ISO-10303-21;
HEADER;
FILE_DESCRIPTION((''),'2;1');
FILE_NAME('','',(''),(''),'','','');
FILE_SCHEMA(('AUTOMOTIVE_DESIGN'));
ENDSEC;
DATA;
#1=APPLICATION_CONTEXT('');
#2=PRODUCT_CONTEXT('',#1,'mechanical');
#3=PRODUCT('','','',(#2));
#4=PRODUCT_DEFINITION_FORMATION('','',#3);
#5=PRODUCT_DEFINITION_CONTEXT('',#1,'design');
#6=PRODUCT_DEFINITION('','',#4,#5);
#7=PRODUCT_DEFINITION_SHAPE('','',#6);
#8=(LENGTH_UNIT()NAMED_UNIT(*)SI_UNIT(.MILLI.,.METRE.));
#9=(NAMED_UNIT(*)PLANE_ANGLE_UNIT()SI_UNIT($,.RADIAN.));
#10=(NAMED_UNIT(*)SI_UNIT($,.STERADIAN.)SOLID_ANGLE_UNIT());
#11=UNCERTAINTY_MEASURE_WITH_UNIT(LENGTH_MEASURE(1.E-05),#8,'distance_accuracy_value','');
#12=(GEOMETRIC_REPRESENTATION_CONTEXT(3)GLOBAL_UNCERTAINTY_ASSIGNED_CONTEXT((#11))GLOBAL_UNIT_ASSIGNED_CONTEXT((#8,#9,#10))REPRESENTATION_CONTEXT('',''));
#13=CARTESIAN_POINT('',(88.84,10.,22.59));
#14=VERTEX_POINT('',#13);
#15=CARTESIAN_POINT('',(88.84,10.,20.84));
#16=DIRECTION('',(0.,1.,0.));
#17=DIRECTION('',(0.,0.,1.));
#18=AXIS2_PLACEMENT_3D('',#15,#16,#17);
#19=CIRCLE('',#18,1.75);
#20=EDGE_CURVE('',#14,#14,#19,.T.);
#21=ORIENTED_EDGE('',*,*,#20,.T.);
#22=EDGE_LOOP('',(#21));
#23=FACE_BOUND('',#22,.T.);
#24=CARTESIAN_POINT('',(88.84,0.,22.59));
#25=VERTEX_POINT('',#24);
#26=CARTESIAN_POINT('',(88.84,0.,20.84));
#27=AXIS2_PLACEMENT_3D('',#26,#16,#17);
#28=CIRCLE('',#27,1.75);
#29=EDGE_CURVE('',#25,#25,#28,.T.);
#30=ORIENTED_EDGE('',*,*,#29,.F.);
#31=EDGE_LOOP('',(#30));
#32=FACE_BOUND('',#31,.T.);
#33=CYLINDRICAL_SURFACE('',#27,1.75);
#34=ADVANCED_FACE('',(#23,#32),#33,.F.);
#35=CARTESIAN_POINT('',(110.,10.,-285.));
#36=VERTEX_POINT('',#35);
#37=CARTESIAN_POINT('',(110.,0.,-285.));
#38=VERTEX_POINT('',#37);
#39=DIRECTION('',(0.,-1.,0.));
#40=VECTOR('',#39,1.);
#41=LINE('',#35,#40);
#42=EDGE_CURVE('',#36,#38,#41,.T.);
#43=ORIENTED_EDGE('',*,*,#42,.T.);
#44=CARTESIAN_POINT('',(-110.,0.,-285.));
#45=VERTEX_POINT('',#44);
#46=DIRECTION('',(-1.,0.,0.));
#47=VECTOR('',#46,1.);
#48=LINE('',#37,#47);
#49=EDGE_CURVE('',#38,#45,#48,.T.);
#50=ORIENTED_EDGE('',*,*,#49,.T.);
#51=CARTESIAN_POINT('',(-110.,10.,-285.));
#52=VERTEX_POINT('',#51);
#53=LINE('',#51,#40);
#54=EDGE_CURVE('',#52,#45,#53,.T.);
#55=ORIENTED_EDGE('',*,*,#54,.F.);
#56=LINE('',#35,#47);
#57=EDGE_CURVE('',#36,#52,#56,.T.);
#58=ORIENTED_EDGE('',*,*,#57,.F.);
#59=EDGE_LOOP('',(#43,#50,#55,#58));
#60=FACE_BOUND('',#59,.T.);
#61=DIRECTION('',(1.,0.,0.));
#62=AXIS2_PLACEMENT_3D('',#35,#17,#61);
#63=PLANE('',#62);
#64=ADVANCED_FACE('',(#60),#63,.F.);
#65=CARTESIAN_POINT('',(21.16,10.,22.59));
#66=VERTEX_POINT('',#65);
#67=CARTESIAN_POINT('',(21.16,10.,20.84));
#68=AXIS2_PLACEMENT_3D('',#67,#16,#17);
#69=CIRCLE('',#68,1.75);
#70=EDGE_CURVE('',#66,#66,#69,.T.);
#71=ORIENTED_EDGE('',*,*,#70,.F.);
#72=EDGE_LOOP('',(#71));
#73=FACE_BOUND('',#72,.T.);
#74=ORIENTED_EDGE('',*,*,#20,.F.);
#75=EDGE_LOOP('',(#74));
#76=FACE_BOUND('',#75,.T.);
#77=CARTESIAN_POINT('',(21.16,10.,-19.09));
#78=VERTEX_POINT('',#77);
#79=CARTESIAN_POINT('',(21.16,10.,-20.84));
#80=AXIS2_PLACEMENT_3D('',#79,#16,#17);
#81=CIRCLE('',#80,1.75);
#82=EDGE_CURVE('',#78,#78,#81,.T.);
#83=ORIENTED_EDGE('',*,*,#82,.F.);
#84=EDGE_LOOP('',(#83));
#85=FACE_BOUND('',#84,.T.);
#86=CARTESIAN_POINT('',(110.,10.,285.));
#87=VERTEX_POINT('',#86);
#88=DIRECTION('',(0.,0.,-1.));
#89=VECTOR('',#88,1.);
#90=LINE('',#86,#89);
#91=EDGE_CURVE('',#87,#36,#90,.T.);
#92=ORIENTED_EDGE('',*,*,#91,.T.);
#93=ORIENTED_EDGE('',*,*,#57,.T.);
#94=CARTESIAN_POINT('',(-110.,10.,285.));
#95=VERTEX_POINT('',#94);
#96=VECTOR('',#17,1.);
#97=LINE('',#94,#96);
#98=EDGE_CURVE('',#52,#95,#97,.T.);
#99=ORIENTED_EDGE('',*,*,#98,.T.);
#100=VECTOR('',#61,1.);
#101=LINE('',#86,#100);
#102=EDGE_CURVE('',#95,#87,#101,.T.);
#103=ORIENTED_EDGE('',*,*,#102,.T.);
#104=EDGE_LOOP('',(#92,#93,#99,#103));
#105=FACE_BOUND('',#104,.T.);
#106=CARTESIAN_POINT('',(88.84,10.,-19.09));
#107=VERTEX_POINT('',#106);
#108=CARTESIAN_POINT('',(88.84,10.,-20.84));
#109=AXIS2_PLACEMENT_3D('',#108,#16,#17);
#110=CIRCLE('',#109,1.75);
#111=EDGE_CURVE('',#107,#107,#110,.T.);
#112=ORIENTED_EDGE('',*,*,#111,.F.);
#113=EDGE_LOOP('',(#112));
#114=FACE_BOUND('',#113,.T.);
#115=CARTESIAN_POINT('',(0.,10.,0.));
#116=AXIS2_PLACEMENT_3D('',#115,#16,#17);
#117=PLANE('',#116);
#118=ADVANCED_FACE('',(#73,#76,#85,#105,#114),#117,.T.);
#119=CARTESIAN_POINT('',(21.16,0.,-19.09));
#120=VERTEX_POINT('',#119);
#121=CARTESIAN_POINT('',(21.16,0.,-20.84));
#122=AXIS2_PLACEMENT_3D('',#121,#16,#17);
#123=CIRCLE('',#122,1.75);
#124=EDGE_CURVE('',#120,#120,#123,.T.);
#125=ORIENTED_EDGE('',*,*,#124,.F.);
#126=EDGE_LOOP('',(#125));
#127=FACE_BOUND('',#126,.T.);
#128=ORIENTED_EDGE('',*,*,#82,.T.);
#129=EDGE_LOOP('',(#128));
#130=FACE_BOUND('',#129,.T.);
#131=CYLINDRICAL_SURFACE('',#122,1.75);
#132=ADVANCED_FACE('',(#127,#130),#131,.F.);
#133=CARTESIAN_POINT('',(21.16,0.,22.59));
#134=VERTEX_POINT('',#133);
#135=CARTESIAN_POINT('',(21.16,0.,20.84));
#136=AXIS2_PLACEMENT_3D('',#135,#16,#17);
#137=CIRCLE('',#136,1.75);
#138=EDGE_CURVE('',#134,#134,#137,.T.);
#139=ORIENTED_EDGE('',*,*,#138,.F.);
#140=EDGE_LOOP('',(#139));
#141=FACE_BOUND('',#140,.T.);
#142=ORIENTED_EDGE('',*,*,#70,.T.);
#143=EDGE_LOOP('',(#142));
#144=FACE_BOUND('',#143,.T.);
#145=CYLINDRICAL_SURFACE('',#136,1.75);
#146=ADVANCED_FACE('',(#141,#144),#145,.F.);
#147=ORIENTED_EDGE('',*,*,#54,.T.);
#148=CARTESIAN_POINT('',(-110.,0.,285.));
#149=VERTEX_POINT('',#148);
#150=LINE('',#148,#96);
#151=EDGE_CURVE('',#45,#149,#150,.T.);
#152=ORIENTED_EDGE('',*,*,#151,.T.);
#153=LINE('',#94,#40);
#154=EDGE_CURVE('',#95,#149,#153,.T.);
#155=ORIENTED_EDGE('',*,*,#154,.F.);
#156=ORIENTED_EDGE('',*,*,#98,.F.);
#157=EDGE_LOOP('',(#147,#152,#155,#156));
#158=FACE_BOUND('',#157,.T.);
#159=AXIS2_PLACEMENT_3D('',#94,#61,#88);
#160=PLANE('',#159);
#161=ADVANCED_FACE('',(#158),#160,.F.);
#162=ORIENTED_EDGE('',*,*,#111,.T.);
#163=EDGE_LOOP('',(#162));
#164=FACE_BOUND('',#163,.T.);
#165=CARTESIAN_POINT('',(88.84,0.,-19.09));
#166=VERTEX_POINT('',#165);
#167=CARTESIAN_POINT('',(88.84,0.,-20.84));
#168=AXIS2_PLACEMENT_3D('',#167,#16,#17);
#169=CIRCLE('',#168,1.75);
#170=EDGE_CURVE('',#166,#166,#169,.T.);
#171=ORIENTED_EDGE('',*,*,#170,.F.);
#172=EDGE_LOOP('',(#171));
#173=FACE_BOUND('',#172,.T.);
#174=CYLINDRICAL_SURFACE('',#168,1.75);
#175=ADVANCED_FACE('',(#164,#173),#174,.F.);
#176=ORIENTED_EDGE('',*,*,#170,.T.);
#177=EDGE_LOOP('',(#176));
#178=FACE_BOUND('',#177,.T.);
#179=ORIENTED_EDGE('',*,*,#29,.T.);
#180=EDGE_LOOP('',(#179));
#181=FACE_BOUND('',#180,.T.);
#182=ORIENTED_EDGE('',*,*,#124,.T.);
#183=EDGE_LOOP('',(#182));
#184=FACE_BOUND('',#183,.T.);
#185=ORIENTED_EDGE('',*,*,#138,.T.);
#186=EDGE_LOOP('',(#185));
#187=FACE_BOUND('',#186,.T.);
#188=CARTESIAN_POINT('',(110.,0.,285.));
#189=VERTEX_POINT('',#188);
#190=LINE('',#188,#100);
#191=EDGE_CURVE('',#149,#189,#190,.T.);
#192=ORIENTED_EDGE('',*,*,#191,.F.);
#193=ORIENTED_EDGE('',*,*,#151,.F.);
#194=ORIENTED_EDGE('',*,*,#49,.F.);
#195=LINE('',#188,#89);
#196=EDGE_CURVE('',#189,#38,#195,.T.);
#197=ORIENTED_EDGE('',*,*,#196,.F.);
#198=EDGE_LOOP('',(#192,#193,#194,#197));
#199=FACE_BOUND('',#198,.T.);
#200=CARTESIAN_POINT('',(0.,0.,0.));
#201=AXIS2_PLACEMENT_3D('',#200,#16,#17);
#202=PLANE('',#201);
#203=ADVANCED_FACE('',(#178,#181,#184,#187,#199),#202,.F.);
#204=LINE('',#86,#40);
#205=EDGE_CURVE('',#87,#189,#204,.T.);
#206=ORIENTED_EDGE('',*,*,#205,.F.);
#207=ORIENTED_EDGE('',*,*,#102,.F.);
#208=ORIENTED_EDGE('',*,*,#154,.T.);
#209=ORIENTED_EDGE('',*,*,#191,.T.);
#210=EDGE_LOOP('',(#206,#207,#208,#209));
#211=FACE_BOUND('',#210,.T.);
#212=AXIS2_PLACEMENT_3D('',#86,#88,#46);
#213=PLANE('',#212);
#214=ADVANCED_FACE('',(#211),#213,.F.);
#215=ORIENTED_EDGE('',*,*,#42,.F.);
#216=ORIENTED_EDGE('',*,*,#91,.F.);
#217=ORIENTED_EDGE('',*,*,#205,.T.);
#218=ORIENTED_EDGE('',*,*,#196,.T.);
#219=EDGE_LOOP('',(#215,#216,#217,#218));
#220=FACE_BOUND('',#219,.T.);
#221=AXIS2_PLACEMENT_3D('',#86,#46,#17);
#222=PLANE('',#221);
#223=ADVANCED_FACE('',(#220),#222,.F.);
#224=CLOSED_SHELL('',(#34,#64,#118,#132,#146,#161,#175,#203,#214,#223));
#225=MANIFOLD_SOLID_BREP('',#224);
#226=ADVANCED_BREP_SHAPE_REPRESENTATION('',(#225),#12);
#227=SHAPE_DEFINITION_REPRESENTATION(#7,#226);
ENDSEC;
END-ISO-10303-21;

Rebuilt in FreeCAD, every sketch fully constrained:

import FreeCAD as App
import Part
import Sketcher

doc = App.newDocument("Part")
body = doc.addObject("PartDesign::Body", "Body")

# Sketch on XZ plane
sketch1 = body.newObject("Sketcher::SketchObject", "Sketch")
sketch1.AttachmentSupport = (doc.getObject("XZ_Plane"), [""])
sketch1.MapMode = "FlatFace"
sketch1.addGeometry([
    Part.LineSegment(App.Vector(-110, -285, 0), App.Vector(-110, 285, 0)),
    Part.LineSegment(App.Vector(-110, 285, 0), App.Vector(110, 285, 0)),
    Part.LineSegment(App.Vector(110, 285, 0), App.Vector(110, -285, 0)),
    Part.LineSegment(App.Vector(110, -285, 0), App.Vector(-110, -285, 0)),
], False)
sketch1.addConstraint([
    Sketcher.Constraint("Coincident", 0, 2, 1, 1),
    Sketcher.Constraint("Coincident", 1, 2, 2, 1),
    Sketcher.Constraint("Coincident", 2, 2, 3, 1),
    Sketcher.Constraint("Coincident", 3, 2, 0, 1),
    Sketcher.Constraint("Vertical", 0),
    Sketcher.Constraint("Horizontal", 1),
    Sketcher.Constraint("Vertical", 2),
    Sketcher.Constraint("Horizontal", 3),
    Sketcher.Constraint("Symmetric", 0, 2, 2, 2, -1, 1),
    Sketcher.Constraint("DistanceX", 1, 1, 1, 2, 220.0),
    Sketcher.Constraint("DistanceY", 0, 1, 0, 2, 570.0),
])
pad1 = body.newObject("PartDesign::Pad", "Pad")
pad1.Profile = sketch1
pad1.Length = 10
pad1.Reversed = True

# Sketch on XZ plane
sketch2 = body.newObject("Sketcher::SketchObject", "Sketch001")
sketch2.AttachmentSupport = (doc.getObject("XZ_Plane"), [""])
sketch2.MapMode = "FlatFace"
sketch2.AttachmentOffset = App.Placement(App.Vector(0, 0, -10), App.Rotation())
sketch2.addGeometry([
    Part.Circle(App.Vector(21.2, -20.8, 0), App.Vector(0, 0, 1), 1.8),
    Part.Circle(App.Vector(88.8, -20.8, 0), App.Vector(0, 0, 1), 1.8),
    Part.Circle(App.Vector(21.2, 20.8, 0), App.Vector(0, 0, 1), 1.8),
    Part.Circle(App.Vector(88.8, 20.8, 0), App.Vector(0, 0, 1), 1.8),
], False)
sketch2.addConstraint([
    Sketcher.Constraint("Equal", 0, 1),
    Sketcher.Constraint("Equal", 1, 2),
    Sketcher.Constraint("Equal", 2, 3),
    Sketcher.Constraint("Symmetric", 0, 3, 2, 3, -1),
    Sketcher.Constraint("Symmetric", 1, 3, 3, 3, -1),
    Sketcher.Constraint("Horizontal", 0, 3, 1, 3),
    Sketcher.Constraint("Diameter", 0, 3.5),
    Sketcher.Constraint("DistanceX", -1, 1, 0, 3, 21.16),
    Sketcher.Constraint("DistanceY", 0, 3, -1, 1, 20.84),
    Sketcher.Constraint("DistanceX", -1, 1, 1, 3, 88.84),
])
pocket1 = body.newObject("PartDesign::Pocket", "Pocket")
pocket1.Profile = sketch2
pocket1.Length = 10
pocket1.Reversed = True

doc.recompute()
